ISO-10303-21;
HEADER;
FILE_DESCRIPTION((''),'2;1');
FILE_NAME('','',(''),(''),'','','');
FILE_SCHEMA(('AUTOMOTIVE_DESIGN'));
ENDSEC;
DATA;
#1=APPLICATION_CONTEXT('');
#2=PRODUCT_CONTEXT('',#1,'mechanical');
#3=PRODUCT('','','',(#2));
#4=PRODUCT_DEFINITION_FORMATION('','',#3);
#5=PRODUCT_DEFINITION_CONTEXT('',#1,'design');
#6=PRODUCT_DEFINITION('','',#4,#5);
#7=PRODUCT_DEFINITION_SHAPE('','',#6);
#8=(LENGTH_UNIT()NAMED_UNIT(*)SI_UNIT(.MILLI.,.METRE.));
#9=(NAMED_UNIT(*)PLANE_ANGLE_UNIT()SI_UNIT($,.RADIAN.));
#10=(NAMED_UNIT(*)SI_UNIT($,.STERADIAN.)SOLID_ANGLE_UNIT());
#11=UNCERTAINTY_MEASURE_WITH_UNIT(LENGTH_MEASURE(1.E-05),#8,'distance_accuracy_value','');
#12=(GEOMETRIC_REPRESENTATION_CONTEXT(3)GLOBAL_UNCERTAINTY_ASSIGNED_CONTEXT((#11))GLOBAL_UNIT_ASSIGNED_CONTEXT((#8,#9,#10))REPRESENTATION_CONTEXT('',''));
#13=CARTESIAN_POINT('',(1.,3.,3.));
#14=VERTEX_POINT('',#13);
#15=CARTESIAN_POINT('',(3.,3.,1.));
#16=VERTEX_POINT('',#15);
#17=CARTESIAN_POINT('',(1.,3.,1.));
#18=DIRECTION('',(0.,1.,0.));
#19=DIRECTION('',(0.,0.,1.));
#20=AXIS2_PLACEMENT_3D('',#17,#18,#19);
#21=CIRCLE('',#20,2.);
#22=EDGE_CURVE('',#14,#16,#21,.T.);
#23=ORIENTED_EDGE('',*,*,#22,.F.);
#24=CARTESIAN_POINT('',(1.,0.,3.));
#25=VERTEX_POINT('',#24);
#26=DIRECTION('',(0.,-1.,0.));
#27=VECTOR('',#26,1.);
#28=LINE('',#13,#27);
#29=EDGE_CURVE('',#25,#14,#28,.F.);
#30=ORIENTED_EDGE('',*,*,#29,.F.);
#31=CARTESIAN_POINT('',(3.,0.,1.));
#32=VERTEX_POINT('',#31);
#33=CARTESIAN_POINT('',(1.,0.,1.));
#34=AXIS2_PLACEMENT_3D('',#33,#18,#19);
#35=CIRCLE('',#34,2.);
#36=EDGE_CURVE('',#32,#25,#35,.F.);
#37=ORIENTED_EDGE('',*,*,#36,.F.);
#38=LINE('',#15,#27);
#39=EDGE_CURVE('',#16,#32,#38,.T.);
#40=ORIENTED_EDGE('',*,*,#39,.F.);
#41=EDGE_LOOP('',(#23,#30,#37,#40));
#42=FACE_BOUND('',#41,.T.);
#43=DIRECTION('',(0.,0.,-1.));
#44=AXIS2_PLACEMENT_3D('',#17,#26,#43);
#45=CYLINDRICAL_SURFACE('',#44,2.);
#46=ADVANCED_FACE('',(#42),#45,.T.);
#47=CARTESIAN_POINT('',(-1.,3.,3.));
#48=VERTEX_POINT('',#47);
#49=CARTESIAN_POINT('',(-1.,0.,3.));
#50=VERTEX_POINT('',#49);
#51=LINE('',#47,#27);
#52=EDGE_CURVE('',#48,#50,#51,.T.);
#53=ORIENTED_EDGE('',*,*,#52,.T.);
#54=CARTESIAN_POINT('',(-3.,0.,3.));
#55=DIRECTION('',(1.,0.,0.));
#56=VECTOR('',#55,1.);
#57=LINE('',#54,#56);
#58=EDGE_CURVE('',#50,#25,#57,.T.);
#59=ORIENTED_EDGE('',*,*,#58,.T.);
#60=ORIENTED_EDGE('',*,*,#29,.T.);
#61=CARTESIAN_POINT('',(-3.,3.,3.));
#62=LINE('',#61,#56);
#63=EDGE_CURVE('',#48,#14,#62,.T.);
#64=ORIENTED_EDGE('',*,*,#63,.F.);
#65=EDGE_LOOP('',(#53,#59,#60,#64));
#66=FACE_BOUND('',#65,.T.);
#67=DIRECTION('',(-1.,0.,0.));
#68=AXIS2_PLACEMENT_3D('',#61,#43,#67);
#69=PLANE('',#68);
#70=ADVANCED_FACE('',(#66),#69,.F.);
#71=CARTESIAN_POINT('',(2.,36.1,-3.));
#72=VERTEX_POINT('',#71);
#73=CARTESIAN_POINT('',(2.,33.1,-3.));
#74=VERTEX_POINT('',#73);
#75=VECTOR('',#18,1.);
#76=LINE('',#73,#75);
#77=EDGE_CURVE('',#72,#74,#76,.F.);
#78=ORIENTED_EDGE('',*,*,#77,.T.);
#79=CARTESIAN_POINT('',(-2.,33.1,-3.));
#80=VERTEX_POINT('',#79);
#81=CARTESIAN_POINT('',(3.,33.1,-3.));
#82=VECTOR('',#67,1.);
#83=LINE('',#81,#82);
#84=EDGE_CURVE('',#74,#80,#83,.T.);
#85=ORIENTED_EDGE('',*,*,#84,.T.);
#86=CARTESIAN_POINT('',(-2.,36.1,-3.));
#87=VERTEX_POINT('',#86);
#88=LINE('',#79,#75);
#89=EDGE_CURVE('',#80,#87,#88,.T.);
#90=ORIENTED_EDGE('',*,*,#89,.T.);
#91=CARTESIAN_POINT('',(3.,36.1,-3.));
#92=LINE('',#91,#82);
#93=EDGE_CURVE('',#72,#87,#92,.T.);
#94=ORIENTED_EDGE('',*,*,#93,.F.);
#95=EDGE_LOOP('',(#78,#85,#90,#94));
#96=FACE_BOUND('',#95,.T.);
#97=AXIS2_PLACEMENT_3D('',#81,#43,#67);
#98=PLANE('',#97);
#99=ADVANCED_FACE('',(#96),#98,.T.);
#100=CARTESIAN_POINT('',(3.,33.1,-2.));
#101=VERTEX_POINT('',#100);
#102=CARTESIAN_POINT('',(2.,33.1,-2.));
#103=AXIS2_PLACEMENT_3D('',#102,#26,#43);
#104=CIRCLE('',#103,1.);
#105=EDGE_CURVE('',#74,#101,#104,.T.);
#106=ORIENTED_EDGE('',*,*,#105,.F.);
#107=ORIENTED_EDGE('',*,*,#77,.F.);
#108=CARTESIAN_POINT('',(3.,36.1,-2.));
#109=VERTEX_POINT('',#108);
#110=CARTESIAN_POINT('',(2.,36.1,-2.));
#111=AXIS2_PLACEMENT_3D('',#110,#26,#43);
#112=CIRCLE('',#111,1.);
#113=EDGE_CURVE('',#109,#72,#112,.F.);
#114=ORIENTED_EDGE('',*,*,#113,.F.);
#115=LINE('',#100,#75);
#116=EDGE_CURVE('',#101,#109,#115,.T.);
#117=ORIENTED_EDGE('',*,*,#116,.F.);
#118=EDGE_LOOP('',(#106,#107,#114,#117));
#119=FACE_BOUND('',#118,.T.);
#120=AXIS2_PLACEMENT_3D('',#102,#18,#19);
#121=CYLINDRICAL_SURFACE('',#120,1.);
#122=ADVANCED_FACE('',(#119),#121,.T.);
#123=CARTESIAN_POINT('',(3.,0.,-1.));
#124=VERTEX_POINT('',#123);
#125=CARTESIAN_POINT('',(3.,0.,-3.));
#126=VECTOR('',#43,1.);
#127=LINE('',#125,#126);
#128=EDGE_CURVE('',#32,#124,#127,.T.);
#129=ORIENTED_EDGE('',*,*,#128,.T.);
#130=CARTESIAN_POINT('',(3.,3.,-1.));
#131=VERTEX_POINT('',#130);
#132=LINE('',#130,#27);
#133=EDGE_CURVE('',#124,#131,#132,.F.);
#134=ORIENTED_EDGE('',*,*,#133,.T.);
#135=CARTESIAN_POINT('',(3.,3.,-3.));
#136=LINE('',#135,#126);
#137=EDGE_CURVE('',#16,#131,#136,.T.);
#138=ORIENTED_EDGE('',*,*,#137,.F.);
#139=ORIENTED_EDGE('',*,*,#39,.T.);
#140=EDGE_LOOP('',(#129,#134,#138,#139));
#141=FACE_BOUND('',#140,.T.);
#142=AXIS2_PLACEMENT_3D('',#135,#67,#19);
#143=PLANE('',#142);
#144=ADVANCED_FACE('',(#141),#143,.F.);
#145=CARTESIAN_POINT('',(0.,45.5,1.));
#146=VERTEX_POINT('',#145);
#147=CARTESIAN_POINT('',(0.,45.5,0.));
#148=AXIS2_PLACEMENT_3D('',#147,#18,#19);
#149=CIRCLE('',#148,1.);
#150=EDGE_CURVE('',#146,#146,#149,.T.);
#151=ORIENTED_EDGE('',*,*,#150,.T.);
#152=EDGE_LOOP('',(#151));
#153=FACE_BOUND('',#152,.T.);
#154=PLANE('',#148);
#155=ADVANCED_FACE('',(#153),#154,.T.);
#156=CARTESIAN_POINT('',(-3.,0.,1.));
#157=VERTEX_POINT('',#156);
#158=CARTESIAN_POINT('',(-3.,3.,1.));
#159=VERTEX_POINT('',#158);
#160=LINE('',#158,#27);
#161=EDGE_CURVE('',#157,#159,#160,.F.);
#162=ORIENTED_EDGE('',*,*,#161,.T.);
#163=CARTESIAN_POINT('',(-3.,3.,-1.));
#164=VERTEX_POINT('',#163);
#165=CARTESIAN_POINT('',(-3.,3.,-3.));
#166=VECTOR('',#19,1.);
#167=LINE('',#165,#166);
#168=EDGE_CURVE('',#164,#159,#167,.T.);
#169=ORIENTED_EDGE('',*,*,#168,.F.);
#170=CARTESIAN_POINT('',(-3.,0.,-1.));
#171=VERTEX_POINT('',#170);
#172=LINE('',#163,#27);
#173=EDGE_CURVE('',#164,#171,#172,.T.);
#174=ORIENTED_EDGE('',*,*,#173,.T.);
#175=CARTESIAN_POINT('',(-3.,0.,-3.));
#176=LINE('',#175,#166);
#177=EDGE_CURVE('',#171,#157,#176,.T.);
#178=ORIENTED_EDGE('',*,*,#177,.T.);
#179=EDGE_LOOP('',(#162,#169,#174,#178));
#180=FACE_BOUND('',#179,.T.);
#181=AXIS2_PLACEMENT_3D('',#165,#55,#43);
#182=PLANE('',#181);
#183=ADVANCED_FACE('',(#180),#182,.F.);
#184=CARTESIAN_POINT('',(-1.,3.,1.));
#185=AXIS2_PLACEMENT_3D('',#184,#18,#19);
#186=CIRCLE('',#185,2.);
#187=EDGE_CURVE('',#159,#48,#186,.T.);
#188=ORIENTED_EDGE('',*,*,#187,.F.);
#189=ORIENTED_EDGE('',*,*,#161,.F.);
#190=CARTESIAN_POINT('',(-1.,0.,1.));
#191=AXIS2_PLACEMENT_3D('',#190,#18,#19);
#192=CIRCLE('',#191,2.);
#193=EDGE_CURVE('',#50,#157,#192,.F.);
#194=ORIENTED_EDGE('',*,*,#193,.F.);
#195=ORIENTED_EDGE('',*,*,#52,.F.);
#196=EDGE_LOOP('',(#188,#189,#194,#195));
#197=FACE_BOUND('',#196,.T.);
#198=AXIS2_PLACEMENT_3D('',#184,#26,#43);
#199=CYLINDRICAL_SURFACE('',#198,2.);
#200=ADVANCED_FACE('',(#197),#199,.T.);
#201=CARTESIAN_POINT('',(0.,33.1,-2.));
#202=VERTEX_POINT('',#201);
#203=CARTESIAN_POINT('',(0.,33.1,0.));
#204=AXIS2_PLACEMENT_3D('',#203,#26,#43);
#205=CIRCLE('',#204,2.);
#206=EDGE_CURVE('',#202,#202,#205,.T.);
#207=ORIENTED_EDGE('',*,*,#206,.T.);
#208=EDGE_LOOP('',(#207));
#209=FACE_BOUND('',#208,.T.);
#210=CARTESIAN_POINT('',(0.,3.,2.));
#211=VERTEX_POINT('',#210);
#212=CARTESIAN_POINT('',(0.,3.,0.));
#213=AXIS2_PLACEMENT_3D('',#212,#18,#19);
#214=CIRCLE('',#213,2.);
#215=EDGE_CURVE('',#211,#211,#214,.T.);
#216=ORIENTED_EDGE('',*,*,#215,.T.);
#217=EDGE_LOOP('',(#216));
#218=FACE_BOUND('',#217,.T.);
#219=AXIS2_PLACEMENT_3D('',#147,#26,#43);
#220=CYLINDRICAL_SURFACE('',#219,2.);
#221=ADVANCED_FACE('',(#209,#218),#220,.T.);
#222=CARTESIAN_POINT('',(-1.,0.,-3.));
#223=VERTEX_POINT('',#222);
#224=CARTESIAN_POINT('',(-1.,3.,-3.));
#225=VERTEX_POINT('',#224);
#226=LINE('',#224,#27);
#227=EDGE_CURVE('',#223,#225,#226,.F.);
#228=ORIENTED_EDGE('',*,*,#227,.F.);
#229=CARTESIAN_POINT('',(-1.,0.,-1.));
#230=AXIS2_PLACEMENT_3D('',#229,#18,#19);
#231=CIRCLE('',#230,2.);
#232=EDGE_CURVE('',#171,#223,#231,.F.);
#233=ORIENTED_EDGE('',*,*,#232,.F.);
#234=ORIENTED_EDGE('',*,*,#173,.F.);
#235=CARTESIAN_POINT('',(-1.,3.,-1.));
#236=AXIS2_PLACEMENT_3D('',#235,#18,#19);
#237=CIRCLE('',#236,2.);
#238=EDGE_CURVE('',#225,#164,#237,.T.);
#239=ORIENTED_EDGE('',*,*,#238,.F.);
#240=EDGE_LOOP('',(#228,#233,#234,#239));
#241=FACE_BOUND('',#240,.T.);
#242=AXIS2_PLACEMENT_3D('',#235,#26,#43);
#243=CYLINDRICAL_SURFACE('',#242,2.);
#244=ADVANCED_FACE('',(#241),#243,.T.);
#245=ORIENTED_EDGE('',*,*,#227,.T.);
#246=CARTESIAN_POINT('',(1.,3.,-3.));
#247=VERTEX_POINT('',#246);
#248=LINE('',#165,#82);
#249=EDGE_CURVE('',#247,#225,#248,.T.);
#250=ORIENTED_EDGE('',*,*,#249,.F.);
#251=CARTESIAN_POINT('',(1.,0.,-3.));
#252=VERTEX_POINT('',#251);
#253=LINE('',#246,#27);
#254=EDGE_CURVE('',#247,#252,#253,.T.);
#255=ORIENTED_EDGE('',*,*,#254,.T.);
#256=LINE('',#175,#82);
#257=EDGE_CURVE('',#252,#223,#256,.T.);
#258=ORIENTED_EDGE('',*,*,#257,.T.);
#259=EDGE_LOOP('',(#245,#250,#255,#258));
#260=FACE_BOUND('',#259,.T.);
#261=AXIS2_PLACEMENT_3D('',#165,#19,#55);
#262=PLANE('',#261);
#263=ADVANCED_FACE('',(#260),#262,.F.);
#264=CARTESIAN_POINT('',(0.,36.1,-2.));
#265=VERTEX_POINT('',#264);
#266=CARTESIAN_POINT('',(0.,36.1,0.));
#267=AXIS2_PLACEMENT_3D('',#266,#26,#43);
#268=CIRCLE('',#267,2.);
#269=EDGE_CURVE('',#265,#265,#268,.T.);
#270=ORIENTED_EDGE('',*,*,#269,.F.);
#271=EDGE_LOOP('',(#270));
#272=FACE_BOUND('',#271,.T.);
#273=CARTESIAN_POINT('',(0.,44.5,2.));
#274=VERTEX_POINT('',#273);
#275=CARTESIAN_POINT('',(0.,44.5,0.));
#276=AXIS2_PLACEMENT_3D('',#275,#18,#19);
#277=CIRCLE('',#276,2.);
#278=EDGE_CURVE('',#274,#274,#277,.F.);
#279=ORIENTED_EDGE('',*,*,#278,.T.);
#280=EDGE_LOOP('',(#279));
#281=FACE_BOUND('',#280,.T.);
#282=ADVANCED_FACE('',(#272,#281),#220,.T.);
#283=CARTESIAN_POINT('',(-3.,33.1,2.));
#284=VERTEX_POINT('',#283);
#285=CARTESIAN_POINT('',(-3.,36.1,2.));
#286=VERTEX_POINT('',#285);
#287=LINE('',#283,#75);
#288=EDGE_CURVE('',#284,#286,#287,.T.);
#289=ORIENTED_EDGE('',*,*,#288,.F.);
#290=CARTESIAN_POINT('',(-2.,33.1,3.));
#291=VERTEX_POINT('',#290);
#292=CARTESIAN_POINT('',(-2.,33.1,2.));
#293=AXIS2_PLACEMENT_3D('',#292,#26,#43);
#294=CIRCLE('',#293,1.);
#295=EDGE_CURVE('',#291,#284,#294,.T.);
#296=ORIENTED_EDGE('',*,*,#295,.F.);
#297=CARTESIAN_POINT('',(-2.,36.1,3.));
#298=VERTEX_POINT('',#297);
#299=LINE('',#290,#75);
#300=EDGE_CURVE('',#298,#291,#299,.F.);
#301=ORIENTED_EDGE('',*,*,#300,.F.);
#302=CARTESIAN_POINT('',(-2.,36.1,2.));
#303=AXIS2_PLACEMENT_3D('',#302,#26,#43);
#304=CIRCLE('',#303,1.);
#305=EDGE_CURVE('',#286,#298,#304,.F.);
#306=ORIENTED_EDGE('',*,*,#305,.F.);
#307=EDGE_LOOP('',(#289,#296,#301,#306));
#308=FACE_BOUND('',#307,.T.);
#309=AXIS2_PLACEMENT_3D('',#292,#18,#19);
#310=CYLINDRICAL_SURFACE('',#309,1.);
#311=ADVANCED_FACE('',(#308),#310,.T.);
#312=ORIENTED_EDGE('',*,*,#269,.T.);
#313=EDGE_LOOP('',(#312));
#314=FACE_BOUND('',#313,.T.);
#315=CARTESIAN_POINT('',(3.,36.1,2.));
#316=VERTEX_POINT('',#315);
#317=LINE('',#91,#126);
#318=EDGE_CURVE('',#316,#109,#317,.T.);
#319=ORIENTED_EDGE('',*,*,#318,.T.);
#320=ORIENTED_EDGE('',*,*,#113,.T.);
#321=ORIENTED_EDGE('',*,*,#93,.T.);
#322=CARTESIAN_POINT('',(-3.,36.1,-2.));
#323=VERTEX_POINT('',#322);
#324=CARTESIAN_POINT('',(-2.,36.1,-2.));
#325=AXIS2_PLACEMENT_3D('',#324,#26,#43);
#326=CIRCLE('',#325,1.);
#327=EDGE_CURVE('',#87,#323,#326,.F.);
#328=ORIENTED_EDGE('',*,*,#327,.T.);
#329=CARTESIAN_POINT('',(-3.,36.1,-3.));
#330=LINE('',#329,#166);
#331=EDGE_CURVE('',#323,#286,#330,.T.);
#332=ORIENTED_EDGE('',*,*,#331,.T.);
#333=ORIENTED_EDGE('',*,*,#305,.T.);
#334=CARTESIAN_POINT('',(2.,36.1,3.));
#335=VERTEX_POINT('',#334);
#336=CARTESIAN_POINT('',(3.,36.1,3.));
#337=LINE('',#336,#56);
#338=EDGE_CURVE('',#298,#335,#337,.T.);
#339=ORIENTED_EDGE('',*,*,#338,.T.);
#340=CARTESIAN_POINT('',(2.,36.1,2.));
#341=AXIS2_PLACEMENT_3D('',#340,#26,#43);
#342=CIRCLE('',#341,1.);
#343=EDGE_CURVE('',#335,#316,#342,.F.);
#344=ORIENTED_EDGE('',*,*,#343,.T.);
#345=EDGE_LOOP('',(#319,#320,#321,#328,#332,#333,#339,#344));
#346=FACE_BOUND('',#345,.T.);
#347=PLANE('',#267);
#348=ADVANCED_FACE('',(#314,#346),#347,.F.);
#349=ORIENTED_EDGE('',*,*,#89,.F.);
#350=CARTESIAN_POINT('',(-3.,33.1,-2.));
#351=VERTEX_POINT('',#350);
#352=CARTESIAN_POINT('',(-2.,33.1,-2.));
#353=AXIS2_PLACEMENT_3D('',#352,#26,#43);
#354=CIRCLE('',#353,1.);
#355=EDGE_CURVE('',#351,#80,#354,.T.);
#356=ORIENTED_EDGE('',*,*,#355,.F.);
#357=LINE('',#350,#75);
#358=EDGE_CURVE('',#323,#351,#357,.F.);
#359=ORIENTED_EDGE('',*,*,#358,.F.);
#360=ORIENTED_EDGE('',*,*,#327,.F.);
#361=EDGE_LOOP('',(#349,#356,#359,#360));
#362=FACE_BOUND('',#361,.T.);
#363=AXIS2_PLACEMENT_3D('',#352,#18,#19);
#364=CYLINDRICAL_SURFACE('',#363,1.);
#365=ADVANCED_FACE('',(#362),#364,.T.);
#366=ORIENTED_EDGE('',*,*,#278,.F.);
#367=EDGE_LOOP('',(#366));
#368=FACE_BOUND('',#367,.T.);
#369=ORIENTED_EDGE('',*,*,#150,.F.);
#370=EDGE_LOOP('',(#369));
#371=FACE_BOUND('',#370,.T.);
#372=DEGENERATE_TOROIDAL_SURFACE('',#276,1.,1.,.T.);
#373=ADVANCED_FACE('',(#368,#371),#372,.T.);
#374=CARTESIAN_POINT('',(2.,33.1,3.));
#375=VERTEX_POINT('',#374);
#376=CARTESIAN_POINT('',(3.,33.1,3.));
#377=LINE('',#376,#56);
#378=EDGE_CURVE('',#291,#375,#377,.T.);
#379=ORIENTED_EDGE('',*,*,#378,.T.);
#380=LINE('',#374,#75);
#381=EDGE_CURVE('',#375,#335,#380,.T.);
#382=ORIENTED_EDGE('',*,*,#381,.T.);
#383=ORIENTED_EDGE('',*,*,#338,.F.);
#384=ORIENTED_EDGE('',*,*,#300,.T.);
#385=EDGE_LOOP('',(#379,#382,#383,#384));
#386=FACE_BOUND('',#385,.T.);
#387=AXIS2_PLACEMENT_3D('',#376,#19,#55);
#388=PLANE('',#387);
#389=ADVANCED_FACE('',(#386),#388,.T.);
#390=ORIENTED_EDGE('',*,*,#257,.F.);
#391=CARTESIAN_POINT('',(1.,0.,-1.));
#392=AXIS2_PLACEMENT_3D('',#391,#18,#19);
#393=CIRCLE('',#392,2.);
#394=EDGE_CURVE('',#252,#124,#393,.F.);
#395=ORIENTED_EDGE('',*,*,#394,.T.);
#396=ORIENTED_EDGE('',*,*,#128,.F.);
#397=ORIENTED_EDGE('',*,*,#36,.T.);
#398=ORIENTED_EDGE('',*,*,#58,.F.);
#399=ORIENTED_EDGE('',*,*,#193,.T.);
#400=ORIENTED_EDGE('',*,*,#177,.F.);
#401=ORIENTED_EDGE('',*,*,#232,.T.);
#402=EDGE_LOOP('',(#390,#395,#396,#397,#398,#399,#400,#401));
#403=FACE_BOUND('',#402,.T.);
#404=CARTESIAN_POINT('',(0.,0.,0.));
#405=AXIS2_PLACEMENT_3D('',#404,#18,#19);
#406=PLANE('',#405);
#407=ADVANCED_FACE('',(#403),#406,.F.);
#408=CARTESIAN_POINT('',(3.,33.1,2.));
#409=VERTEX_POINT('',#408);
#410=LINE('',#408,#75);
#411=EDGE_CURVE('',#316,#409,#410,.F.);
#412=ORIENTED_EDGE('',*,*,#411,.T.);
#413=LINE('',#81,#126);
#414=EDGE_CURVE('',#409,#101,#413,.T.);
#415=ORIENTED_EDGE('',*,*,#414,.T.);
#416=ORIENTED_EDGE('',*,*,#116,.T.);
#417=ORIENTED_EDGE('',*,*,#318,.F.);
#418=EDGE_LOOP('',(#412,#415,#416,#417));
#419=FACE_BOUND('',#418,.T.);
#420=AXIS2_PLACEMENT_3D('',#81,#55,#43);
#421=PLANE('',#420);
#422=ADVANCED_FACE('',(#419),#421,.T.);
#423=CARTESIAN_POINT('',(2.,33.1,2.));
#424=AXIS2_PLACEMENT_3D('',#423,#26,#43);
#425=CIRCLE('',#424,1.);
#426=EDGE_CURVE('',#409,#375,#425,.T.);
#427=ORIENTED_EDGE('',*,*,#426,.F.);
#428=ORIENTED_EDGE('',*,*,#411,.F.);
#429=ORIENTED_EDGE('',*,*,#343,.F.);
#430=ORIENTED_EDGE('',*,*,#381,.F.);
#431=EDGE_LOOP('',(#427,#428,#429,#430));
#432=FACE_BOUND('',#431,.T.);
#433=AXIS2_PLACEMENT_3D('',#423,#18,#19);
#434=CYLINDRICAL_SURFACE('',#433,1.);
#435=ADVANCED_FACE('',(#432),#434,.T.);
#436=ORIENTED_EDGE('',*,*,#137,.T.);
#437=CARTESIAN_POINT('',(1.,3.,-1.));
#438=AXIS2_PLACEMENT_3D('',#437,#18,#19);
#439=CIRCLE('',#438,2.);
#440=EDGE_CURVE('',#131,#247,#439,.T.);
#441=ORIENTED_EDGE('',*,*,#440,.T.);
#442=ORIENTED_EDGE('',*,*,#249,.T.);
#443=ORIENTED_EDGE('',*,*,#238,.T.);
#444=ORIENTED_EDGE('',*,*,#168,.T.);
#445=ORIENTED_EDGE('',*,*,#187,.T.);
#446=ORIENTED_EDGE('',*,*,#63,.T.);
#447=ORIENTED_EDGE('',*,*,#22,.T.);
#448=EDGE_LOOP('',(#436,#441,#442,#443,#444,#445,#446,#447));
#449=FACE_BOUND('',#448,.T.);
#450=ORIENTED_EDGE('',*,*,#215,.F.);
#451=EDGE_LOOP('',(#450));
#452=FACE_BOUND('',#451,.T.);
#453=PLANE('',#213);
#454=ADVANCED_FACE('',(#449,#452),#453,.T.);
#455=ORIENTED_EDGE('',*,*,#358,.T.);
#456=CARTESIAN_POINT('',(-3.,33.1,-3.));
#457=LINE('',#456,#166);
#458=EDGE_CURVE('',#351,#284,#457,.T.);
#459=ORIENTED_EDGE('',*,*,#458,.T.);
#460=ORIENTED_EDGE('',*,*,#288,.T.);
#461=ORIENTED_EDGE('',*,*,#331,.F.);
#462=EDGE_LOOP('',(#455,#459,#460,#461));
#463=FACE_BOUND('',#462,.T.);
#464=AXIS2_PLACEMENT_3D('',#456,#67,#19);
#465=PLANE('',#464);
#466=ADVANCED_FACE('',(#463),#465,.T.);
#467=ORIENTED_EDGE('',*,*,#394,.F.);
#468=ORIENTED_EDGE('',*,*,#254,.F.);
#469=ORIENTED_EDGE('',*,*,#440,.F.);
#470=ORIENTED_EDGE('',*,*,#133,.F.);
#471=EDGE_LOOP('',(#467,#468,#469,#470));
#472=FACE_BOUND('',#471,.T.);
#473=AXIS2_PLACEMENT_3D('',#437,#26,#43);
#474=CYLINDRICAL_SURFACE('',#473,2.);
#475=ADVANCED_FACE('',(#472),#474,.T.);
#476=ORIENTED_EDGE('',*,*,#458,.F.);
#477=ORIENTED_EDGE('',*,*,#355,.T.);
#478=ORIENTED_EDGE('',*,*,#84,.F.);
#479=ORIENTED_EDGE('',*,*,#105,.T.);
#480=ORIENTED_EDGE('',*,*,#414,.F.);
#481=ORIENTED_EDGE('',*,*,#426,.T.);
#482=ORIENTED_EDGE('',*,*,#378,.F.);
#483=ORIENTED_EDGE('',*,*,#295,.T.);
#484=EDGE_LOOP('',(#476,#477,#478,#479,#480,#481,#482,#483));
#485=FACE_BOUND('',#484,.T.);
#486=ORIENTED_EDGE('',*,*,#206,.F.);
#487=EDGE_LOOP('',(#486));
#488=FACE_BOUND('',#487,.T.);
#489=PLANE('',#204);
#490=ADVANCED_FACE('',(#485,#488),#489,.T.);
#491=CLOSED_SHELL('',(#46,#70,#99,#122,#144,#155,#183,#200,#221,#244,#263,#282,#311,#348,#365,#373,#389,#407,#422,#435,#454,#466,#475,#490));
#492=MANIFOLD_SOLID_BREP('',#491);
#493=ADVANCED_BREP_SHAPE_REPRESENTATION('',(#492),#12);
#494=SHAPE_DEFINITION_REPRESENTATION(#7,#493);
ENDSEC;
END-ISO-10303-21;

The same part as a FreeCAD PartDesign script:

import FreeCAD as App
import Part
import Sketcher
Q = App.Units.Quantity


def edges_at(feature, points):
    """Names of the edges that pass closest to the given points."""
    edges = feature.Shape.Edges
    near = lambda p: min(range(len(edges)), key=lambda i: edges[i].distToShape(Part.Vertex(*p))[0])
    return sorted({f"Edge{near(p) + 1}" for p in points})

doc = App.newDocument("Part")
body = doc.addObject("PartDesign::Body", "Body")

sketch1 = doc.addObject("Sketcher::SketchObject", "Sketch")
body.addObject(sketch1)
sketch1.AttachmentSupport = (doc.XZ_Plane, [""])
sketch1.MapMode = "FlatFace"
sketch1.addGeometry([
    Part.LineSegment(App.Vector(-3, -3, 0), App.Vector(-3, 3, 0)),
    Part.LineSegment(App.Vector(-3, 3, 0), App.Vector(3, 3, 0)),
    Part.LineSegment(App.Vector(3, 3, 0), App.Vector(3, -3, 0)),
    Part.LineSegment(App.Vector(3, -3, 0), App.Vector(-3, -3, 0)),
], False)
sketch1.addConstraint([
    Sketcher.Constraint("Coincident", 0, 2, 1, 1),
    Sketcher.Constraint("Coincident", 1, 2, 2, 1),
    Sketcher.Constraint("Coincident", 2, 2, 3, 1),
    Sketcher.Constraint("Coincident", 3, 2, 0, 1),
    Sketcher.Constraint("Vertical", 0),
    Sketcher.Constraint("Horizontal", 1),
    Sketcher.Constraint("Vertical", 2),
    Sketcher.Constraint("Horizontal", 3),
    Sketcher.Constraint("Symmetric", 0, 2, 2, 2, -1, 1),
    Sketcher.Constraint("Equal", 3, 0),
    Sketcher.Constraint("DistanceX", 1, 1, 1, 2, Q("6 mm")),
])
pad1 = doc.addObject("PartDesign::Pad", "Pad")
body.addObject(pad1)
pad1.Profile = sketch1
pad1.Length = 3
pad1.Reversed = True
doc.recompute()

fillet = doc.addObject("PartDesign::Fillet", "Fillet")
body.addObject(fillet)
fillet.Base = (pad1, edges_at(pad1, [
    (3, 1.5, 3),
    (-3, 1.5, 3),
    (-3, 1.5, -3),
    (3, 1.5, -3),
]))
fillet.Radius = 2

sketch2 = doc.addObject("Sketcher::SketchObject", "Sketch001")
body.addObject(sketch2)
sketch2.AttachmentSupport = (doc.XZ_Plane, [""])
sketch2.MapMode = "FlatFace"
sketch2.AttachmentOffset = App.Placement(App.Vector(0, 0, -3), App.Rotation())
sketch2.addGeometry(Part.Circle(App.Vector(0, 0, 0), App.Vector(0, 0, 1), 2), False)
sketch2.addConstraint([
    Sketcher.Constraint("Coincident", 0, 3, -1, 1),
    Sketcher.Constraint("Diameter", 0, Q("4 mm")),
])
pad2 = doc.addObject("PartDesign::Pad", "Pad001")
body.addObject(pad2)
pad2.Profile = sketch2
pad2.Length = 42.5
pad2.Reversed = True
doc.recompute()

fillet2 = doc.addObject("PartDesign::Fillet", "Fillet001")
body.addObject(fillet2)
fillet2.Base = (pad2, edges_at(pad2, [(-2, 45.5, 0)]))
fillet2.Radius = 1

sketch3 = doc.addObject("Sketcher::SketchObject", "Sketch002")
body.addObject(sketch3)
sketch3.AttachmentSupport = (doc.XZ_Plane, [""])
sketch3.MapMode = "FlatFace"
sketch3.AttachmentOffset = App.Placement(App.Vector(0, 0, -36.1), App.Rotation())
sketch3.addGeometry([
    Part.LineSegment(App.Vector(-3, -3, 0), App.Vector(-3, 3, 0)),
    Part.LineSegment(App.Vector(-3, 3, 0), App.Vector(3, 3, 0)),
    Part.LineSegment(App.Vector(3, 3, 0), App.Vector(3, -3, 0)),
    Part.LineSegment(App.Vector(3, -3, 0), App.Vector(-3, -3, 0)),
], False)
sketch3.addConstraint([
    Sketcher.Constraint("Coincident", 0, 2, 1, 1),
    Sketcher.Constraint("Coincident", 1, 2, 2, 1),
    Sketcher.Constraint("Coincident", 2, 2, 3, 1),
    Sketcher.Constraint("Coincident", 3, 2, 0, 1),
    Sketcher.Constraint("Vertical", 0),
    Sketcher.Constraint("Horizontal", 1),
    Sketcher.Constraint("Vertical", 2),
    Sketcher.Constraint("Horizontal", 3),
    Sketcher.Constraint("Symmetric", 0, 2, 2, 2, -1, 1),
    Sketcher.Constraint("Equal", 3, 0),
    Sketcher.Constraint("DistanceX", 1, 1, 1, 2, Q("6 mm")),
])
pad3 = doc.addObject("PartDesign::Pad", "Pad002")
body.addObject(pad3)
pad3.Profile = sketch3
pad3.Length = 3
doc.recompute()

fillet3 = doc.addObject("PartDesign::Fillet", "Fillet002")
body.addObject(fillet3)
fillet3.Base = (pad3, edges_at(pad3, [
    (-3, 34.6, 3),
    (-3, 34.6, -3),
    (3, 34.6, -3),
    (3, 34.6, 3),
]))
fillet3.Radius = 1

doc.recompute()
